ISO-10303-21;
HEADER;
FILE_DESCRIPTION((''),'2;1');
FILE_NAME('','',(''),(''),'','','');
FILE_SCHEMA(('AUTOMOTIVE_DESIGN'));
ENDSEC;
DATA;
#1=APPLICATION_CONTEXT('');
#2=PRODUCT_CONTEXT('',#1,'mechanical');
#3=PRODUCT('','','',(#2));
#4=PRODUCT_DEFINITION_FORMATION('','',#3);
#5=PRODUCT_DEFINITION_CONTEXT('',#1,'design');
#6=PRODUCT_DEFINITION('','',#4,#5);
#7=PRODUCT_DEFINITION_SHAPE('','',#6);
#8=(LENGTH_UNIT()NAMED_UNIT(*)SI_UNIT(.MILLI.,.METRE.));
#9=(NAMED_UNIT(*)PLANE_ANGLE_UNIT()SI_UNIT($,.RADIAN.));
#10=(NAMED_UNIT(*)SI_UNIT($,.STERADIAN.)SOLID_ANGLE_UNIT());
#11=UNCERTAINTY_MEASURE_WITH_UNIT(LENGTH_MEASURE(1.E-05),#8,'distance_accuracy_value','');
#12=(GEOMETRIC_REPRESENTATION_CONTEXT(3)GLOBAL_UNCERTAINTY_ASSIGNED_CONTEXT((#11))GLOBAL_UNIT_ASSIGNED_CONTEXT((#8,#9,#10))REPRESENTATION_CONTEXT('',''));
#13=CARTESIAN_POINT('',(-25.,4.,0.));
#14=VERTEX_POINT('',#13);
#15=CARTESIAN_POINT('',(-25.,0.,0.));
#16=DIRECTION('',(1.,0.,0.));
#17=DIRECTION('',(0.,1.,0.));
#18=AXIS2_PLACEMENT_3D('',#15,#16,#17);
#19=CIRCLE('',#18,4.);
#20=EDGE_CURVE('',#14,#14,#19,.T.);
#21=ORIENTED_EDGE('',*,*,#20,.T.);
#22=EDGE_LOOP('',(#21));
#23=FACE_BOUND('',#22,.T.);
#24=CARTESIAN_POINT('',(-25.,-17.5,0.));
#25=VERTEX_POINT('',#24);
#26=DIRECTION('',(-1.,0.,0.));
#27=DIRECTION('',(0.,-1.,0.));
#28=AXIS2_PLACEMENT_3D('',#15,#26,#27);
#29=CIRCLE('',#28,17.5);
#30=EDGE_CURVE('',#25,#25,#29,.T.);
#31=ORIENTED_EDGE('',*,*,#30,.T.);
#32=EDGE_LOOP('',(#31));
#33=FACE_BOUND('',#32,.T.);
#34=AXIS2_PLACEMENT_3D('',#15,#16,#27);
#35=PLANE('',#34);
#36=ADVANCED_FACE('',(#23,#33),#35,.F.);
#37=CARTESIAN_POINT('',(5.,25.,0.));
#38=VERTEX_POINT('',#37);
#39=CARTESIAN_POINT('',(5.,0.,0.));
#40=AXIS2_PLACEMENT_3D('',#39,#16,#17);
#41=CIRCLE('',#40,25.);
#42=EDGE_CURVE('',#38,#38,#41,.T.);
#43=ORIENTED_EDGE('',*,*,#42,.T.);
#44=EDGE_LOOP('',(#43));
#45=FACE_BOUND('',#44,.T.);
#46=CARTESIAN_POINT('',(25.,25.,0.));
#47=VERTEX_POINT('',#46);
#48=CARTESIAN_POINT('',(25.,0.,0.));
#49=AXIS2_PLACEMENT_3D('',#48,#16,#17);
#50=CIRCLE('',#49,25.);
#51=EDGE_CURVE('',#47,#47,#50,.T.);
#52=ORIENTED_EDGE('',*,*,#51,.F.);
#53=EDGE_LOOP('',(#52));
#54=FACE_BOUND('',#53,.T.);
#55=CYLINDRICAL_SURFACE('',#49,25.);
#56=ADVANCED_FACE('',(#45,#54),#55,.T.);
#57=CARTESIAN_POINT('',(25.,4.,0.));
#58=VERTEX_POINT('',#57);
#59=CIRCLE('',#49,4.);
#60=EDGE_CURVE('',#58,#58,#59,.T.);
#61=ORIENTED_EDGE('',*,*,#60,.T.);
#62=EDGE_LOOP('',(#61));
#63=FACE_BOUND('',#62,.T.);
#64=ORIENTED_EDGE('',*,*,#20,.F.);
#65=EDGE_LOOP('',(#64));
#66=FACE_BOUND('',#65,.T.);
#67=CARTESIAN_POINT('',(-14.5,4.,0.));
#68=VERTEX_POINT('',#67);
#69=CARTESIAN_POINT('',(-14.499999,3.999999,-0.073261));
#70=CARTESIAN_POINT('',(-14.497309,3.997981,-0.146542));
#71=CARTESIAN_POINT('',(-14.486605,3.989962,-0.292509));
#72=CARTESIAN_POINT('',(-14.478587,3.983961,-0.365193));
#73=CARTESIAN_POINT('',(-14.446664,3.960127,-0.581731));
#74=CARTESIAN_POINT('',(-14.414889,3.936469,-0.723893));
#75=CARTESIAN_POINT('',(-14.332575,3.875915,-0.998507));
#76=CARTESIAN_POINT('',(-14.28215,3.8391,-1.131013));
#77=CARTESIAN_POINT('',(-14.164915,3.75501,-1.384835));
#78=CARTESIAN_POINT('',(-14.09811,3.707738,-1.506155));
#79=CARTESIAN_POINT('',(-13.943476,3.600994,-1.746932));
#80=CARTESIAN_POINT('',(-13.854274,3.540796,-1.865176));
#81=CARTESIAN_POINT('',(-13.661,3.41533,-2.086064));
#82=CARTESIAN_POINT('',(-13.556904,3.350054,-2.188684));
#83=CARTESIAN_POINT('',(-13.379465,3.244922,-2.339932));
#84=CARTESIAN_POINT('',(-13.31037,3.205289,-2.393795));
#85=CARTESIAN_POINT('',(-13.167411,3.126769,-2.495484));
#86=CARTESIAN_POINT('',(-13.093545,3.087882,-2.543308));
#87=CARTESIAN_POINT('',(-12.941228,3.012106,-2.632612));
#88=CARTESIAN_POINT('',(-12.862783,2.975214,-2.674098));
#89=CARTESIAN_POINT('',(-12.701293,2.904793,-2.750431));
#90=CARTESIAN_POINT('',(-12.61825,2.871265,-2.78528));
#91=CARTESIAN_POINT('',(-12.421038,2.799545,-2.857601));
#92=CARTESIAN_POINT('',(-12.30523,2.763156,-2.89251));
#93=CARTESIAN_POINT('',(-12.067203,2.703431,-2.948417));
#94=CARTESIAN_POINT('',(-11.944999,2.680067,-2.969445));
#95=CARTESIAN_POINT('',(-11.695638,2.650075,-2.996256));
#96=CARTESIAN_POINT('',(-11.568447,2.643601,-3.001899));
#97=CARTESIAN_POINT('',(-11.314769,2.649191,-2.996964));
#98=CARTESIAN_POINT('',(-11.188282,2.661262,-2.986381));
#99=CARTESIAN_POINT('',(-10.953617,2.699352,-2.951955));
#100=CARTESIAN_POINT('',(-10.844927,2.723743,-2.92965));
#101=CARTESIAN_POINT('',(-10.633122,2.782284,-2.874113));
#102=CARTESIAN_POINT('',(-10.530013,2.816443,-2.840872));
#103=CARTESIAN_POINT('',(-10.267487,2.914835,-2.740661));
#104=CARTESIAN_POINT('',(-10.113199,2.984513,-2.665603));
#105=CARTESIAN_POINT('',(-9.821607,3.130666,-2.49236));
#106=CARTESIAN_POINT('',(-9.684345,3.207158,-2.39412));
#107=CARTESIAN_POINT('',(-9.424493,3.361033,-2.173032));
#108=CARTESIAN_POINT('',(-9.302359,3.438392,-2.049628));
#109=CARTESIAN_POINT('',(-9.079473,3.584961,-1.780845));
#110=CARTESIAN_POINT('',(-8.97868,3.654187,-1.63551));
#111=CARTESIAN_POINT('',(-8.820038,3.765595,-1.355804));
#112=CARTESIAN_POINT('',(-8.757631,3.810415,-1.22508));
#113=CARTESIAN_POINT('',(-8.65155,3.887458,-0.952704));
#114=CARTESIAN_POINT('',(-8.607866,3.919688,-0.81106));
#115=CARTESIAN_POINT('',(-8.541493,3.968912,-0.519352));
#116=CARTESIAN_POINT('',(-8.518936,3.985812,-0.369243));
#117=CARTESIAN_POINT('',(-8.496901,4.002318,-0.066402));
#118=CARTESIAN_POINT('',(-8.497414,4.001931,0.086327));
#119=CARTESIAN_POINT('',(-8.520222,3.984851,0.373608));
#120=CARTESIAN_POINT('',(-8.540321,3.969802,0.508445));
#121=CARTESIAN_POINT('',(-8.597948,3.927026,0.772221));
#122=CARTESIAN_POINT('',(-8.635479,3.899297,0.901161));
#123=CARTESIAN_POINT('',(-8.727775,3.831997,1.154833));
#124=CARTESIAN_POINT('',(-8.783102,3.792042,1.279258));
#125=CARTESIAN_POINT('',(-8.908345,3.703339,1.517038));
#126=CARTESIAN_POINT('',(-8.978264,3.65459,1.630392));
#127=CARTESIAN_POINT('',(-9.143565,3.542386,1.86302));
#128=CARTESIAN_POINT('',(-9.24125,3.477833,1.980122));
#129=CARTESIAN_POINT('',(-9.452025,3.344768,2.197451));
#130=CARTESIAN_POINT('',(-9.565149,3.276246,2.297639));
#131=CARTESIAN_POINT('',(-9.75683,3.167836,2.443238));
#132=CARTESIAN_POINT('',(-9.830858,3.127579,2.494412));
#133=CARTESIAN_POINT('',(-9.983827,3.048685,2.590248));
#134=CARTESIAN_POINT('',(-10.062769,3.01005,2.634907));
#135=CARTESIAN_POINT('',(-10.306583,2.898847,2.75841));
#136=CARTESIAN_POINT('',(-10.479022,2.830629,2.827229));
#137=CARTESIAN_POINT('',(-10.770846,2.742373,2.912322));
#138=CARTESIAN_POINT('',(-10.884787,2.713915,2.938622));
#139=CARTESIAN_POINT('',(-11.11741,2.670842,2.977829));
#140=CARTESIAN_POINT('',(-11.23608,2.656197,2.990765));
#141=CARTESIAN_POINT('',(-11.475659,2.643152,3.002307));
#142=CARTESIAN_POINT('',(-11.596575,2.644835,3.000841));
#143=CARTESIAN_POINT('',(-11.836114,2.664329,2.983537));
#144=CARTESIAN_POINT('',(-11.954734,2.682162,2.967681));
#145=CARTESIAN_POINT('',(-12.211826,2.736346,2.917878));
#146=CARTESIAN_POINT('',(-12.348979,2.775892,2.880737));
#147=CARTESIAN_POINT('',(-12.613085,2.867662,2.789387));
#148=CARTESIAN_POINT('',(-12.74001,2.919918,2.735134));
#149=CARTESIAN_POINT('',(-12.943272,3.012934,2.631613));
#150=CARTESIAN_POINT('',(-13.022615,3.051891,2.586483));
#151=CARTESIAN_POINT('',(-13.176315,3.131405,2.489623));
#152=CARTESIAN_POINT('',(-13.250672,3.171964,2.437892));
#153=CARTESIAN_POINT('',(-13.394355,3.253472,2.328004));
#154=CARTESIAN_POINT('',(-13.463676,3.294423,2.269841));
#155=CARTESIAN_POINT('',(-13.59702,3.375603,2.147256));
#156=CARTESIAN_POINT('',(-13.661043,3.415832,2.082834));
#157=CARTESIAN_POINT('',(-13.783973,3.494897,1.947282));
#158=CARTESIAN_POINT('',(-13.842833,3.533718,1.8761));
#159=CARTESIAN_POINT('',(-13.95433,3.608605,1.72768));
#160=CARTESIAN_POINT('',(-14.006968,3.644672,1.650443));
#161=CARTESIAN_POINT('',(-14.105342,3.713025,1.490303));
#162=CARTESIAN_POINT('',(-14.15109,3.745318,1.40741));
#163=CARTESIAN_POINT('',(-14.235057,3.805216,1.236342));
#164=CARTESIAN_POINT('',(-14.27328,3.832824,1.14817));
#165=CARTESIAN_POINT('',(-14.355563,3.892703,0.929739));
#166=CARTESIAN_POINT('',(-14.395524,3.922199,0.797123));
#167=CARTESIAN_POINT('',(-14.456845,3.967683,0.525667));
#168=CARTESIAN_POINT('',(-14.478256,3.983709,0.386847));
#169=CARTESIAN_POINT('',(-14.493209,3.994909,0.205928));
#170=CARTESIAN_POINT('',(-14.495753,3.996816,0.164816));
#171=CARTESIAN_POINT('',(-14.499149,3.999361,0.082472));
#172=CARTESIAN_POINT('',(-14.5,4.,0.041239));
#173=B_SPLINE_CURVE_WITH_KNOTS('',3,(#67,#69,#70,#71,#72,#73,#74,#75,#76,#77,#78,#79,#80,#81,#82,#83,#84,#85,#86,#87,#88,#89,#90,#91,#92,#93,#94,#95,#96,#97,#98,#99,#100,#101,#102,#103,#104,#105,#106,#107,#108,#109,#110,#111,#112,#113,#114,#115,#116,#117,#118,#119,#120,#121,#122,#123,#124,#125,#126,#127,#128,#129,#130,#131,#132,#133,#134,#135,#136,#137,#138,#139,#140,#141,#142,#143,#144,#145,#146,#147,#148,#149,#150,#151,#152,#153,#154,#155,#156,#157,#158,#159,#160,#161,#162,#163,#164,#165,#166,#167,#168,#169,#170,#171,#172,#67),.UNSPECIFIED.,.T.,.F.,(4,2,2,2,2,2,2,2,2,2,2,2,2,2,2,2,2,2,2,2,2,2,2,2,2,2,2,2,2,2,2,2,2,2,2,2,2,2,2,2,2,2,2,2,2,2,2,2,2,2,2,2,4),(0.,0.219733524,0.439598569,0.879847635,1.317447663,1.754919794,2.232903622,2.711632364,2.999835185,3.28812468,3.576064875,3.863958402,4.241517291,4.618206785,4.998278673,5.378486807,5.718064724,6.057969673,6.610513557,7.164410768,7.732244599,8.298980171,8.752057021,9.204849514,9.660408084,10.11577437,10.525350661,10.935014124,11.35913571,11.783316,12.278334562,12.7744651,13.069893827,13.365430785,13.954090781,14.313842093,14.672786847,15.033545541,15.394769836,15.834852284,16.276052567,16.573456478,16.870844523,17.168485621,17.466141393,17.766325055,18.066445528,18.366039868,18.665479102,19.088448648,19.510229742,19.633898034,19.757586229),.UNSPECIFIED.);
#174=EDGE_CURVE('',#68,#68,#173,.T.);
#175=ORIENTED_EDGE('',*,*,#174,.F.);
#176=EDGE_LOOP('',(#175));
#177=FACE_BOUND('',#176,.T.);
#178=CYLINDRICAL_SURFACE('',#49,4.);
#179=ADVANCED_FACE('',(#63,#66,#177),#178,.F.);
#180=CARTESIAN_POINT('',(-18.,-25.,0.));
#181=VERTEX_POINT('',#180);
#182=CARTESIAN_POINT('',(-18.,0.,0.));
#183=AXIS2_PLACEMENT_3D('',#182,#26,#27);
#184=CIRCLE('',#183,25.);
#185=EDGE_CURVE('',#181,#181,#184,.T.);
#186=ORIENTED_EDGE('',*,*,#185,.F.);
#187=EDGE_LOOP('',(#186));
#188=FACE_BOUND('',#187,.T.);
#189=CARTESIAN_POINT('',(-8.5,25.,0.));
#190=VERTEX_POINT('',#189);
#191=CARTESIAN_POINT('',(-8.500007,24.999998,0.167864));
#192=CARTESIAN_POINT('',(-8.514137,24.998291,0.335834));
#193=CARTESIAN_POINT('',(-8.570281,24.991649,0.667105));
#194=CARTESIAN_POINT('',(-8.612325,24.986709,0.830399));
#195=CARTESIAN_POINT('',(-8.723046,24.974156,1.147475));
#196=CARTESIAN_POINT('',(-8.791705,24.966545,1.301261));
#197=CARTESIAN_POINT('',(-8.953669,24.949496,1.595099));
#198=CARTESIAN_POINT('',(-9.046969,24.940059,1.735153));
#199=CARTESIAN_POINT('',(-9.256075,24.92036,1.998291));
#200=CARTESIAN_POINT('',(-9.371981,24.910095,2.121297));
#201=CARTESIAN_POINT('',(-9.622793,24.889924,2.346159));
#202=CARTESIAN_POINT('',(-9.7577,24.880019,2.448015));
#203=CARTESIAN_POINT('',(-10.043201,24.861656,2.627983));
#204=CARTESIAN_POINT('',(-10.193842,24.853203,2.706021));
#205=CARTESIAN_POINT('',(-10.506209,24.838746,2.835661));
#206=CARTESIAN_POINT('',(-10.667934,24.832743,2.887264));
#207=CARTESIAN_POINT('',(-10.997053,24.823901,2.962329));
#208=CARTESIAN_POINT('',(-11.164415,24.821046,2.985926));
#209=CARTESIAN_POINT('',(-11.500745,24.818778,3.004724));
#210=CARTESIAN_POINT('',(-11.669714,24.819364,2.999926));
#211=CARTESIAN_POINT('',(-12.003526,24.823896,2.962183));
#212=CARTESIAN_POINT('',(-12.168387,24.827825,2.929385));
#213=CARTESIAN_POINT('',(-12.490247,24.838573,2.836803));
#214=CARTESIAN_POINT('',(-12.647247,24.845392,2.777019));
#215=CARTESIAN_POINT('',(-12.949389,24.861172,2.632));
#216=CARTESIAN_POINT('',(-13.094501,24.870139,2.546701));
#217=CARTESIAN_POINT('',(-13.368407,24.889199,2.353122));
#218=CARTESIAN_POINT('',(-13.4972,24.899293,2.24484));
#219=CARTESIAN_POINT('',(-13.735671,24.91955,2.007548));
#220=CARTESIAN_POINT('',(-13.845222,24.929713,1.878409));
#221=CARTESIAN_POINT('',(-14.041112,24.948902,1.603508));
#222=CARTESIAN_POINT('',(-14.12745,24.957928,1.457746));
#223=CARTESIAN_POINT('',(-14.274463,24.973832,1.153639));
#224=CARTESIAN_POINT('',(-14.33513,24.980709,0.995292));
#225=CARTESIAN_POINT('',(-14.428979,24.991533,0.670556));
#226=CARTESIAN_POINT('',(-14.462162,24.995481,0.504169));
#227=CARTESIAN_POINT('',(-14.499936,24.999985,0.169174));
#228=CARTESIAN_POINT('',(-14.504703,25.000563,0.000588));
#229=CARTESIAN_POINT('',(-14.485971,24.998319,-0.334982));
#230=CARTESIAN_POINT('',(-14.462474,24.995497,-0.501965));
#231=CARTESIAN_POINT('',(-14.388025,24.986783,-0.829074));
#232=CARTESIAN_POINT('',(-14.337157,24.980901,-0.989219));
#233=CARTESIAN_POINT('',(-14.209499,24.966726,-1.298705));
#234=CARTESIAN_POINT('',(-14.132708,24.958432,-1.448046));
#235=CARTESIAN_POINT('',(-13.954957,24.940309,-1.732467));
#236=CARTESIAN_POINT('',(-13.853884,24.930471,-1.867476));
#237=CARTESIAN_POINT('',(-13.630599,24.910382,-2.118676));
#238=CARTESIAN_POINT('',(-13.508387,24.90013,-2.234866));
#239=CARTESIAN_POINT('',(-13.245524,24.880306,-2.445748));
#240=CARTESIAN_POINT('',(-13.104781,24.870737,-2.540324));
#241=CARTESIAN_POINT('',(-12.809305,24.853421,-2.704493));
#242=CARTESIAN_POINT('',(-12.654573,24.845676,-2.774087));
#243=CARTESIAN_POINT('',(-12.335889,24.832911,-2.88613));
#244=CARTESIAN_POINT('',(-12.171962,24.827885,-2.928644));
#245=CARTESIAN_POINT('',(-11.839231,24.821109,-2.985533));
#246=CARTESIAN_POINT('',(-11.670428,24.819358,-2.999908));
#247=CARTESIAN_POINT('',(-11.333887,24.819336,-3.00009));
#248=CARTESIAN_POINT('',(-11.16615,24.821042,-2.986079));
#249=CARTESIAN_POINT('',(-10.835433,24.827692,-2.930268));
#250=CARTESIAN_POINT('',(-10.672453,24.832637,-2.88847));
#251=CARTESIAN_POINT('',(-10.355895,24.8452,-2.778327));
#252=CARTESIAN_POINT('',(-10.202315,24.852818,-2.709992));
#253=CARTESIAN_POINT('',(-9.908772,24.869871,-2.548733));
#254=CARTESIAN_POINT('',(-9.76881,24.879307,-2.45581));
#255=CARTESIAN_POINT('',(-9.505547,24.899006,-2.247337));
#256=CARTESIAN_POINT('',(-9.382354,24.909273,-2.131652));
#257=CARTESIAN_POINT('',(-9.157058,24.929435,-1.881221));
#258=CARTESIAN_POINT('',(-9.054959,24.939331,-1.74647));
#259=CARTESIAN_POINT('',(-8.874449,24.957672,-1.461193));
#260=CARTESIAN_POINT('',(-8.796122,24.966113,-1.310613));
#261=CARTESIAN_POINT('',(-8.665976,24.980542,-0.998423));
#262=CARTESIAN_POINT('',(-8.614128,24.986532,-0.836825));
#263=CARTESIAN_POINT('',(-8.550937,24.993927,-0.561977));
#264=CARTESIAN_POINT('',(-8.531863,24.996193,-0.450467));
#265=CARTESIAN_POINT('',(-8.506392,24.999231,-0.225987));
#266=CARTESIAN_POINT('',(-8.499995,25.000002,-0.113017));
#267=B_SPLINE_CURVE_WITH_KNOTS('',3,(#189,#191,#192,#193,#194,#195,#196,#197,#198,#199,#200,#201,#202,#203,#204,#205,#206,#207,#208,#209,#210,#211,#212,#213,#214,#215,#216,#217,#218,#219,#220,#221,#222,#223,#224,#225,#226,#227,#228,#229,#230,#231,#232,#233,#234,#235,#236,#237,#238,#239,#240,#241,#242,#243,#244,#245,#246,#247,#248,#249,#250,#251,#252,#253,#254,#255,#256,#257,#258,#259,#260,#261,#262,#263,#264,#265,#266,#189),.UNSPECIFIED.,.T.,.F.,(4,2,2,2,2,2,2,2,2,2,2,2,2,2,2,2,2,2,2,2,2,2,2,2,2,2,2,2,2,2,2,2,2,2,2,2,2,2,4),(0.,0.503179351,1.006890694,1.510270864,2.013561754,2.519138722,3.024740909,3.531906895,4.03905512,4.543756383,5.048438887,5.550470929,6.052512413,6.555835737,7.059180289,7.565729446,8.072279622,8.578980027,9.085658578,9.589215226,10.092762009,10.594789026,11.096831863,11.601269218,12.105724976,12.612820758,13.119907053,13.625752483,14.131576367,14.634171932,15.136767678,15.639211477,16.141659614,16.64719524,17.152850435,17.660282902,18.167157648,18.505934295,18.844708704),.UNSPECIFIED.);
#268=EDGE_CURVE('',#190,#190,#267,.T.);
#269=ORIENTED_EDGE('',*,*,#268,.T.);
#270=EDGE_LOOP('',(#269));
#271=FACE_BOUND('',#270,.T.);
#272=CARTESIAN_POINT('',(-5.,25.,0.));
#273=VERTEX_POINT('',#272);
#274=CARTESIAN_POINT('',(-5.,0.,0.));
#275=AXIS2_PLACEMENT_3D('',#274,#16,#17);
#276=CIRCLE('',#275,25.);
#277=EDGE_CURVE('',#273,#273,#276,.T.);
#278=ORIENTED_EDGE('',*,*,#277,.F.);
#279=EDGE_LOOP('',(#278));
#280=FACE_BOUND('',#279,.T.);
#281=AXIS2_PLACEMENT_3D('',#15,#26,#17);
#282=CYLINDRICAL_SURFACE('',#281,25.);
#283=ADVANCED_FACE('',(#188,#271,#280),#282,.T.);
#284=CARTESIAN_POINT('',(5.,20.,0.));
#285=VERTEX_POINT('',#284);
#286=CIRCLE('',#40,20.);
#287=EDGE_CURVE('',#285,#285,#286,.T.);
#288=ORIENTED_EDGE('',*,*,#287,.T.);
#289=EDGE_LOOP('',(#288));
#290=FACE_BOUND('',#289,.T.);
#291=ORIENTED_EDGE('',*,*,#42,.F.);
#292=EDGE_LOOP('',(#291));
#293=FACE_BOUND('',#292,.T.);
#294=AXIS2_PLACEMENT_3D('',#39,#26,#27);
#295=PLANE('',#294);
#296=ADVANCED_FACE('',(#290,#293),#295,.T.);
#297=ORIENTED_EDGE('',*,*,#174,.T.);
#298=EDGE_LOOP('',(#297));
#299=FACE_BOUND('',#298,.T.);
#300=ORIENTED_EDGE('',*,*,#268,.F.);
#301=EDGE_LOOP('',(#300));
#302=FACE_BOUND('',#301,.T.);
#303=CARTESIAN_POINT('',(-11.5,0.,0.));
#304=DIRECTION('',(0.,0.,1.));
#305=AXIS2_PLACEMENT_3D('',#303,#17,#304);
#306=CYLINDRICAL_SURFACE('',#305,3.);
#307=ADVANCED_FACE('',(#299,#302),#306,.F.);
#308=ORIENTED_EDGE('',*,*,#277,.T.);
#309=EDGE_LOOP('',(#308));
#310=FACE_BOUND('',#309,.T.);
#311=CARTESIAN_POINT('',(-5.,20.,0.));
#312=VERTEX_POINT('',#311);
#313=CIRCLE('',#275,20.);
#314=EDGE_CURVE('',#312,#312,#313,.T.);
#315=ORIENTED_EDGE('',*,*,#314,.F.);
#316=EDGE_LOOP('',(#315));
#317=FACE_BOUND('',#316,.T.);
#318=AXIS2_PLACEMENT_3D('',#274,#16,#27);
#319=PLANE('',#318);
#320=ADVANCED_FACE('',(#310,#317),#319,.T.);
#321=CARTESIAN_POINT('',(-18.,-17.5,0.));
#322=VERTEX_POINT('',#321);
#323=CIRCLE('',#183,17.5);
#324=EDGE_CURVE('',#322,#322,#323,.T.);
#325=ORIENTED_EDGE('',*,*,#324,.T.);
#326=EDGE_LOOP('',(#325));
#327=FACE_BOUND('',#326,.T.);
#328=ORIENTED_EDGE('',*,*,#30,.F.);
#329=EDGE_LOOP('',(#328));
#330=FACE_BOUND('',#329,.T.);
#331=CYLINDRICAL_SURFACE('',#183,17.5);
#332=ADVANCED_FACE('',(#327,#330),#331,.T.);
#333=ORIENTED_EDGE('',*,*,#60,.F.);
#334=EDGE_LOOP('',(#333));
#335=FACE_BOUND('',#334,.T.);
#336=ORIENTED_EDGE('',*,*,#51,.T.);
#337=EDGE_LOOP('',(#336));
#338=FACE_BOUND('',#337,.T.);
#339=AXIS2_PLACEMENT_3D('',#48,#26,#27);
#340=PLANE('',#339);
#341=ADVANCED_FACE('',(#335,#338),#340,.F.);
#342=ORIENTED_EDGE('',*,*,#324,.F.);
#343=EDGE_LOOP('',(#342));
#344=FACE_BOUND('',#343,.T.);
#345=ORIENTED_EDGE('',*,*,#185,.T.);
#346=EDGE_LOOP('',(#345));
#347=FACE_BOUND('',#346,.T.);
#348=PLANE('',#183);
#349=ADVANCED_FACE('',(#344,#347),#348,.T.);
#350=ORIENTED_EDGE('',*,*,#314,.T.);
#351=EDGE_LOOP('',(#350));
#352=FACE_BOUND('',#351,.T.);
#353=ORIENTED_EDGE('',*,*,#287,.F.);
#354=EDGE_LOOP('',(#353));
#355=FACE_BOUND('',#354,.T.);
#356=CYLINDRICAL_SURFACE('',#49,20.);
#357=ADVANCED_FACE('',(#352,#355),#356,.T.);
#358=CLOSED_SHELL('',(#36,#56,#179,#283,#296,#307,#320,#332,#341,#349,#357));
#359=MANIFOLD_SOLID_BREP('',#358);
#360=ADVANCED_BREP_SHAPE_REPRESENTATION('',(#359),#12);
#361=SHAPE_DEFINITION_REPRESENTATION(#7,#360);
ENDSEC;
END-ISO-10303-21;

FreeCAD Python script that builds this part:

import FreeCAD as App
import Part
import Sketcher
Q = App.Units.Quantity

doc = App.newDocument("Part")
body = doc.addObject("PartDesign::Body", "Body")

# Sketch on XY plane
sketch1 = body.newObject("Sketcher::SketchObject", "Sketch")
sketch1.AttachmentSupport = (doc.getObject("XY_Plane"), [""])
sketch1.MapMode = "FlatFace"
sketch1.addGeometry(Part.LineSegment(App.Vector(0, 20, 0), App.Vector(0, 4, 0)), False)
sketch1.addGeometry(Part.LineSegment(App.Vector(0, 4, 0), App.Vector(25, 4, 0)), False)
sketch1.addGeometry(Part.LineSegment(App.Vector(25, 4, 0), App.Vector(25, 25, 0)), False)
sketch1.addGeometry(Part.LineSegment(App.Vector(25, 25, 0), App.Vector(5, 25, 0)), False)
sketch1.addGeometry(Part.LineSegment(App.Vector(5, 25, 0), App.Vector(5, 20, 0)), False)
sketch1.addGeometry(Part.LineSegment(App.Vector(5, 20, 0), App.Vector(0, 20, 0)), False)
sketch1.addConstraint(Sketcher.Constraint("Coincident", 0, 2, 1, 1))
sketch1.addConstraint(Sketcher.Constraint("Coincident", 1, 2, 2, 1))
sketch1.addConstraint(Sketcher.Constraint("Coincident", 2, 2, 3, 1))
sketch1.addConstraint(Sketcher.Constraint("Coincident", 3, 2, 4, 1))
sketch1.addConstraint(Sketcher.Constraint("Coincident", 4, 2, 5, 1))
sketch1.addConstraint(Sketcher.Constraint("Coincident", 5, 2, 0, 1))
sketch1.addConstraint(Sketcher.Constraint("Vertical", 0))
sketch1.addConstraint(Sketcher.Constraint("Horizontal", 1))
sketch1.addConstraint(Sketcher.Constraint("Vertical", 2))
sketch1.addConstraint(Sketcher.Constraint("Horizontal", 3))
sketch1.addConstraint(Sketcher.Constraint("Vertical", 4))
sketch1.addConstraint(Sketcher.Constraint("Horizontal", 5))
sketch1.addConstraint(Sketcher.Constraint("PointOnObject", 0, 2, -2))
sketch1.addConstraint(Sketcher.Constraint("Equal", 5, 4))
sketch1.addConstraint(Sketcher.Constraint("DistanceX", 1, 1, 1, 2, Q("25 mm")))
sketch1.addConstraint(Sketcher.Constraint("DistanceX", 3, 2, 3, 1, Q("20 mm")))
sketch1.addConstraint(Sketcher.Constraint("DistanceY", 0, 2, 0, 1, Q("16 mm")))
sketch1.addConstraint(Sketcher.Constraint("DistanceY", -1, 1, 0, 2, Q("4 mm")))
revolution = body.newObject("PartDesign::Revolution", "Revolution")
revolution.Profile = sketch1
revolution.ReferenceAxis = (sketch1, ["H_Axis"])
revolution.Angle = 360
body2 = doc.addObject("PartDesign::Body", "Body001")
doc.recompute()

body2.BaseFeature = body
doc.recompute()

mirroring = doc.addObject("Part::Mirroring", "Mirroring")
mirroring.Source = body
mirroring.Base = App.Vector(0, 0, 0)
mirroring.Normal = App.Vector(1, 0, 0)
body3 = doc.addObject("PartDesign::Body", "Body002")
body3.BaseFeature = mirroring
boolean = body2.newObject("PartDesign::Boolean", "Boolean")
boolean.Type = "Fuse"
boolean.addObjects([body3])
doc.recompute()

# Sketch on YZ plane
sketch2 = body2.newObject("Sketcher::SketchObject", "Sketch001")
sketch2.AttachmentSupport = (doc.getObject("YZ_Plane001"), [""])
sketch2.MapMode = "FlatFace"
sketch2.AttachmentOffset = App.Placement(App.Vector(0, 0, -25), App.Rotation())
sketch2.addGeometry(Part.Circle(App.Vector(0, 0, 0), App.Vector(0, 0, 1), 25), False)
sketch2.addGeometry(Part.Circle(App.Vector(0, 0, 0), App.Vector(0, 0, 1), 18), False)
sketch2.addConstraint(Sketcher.Constraint("Coincident", 0, 3, -1, 1))
sketch2.addConstraint(Sketcher.Constraint("Coincident", 1, 3, -1, 1))
sketch2.addConstraint(Sketcher.Constraint("Diameter", 0, Q("50 mm")))
sketch2.addConstraint(Sketcher.Constraint("Diameter", 1, Q("35 mm")))
pocket1 = body2.newObject("PartDesign::Pocket", "Pocket")
pocket1.Profile = sketch2
pocket1.Length = 7
pocket1.Reversed = True

# Sketch on XZ plane
sketch3 = body2.newObject("Sketcher::SketchObject", "Sketch002")
sketch3.AttachmentSupport = (doc.getObject("XZ_Plane001"), [""])
sketch3.MapMode = "FlatFace"
sketch3.AttachmentOffset = App.Placement(App.Vector(0, 0, -25), App.Rotation())
sketch3.addGeometry(Part.Circle(App.Vector(-11.5, 0, 0), App.Vector(0, 0, 1), 3), False)
sketch3.addConstraint(Sketcher.Constraint("PointOnObject", 0, 3, -1))
sketch3.addConstraint(Sketcher.Constraint("Diameter", 0, Q("6 mm")))
sketch3.addConstraint(Sketcher.Constraint("DistanceX", 0, 3, -1, 1, Q("11.5 mm")))
pocket2 = body2.newObject("PartDesign::Pocket", "Pocket001")
pocket2.Profile = sketch3
pocket2.Length = 25
pocket2.Reversed = True
mirroring.Visibility = False

doc.recompute()
